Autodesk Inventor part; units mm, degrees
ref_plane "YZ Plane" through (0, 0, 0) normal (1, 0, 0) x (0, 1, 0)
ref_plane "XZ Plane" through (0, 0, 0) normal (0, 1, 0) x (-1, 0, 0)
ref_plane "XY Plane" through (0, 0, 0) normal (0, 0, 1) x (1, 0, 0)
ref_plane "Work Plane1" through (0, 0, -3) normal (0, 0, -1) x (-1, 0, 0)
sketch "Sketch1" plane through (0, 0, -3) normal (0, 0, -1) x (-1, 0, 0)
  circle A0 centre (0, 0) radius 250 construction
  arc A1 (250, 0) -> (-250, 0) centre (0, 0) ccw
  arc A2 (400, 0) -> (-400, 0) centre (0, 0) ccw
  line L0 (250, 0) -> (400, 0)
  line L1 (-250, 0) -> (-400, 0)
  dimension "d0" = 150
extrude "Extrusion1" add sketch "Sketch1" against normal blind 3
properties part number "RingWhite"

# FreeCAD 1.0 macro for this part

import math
import FreeCAD as App
import Part
import Sketcher
from FreeCAD import Vector

doc = App.newDocument("Part")
params = doc.addObject("Spreadsheet::Sheet", "Params")
for row, (alias, value) in enumerate([
    ("sketch1_width", "150 mm"),
    ("sketch1_radius", "250 mm"),
    ("pad1_length", "3 mm"),
], start=1):
    params.set(f"A{row}", alias)
    params.set(f"B{row}", "=" + value)
    params.setAlias(f"B{row}", alias)

body = doc.addObject("PartDesign::Body", "Body")

# Sketch on XY plane
sketch1 = body.newObject("Sketcher::SketchObject", "Sketch")
sketch1.AttachmentSupport = (doc.getObject("XY_Plane"), [""])
sketch1.MapMode = "FlatFace"
sketch1.AttachmentOffset = App.Placement(Vector(0, 0, -3), App.Rotation())
sketch1.addGeometry(Part.ArcOfCircle(Part.Circle(Vector(0, 0, 0), Vector(0, 0, 1), 250), math.radians(0), math.radians(180)), False)
sketch1.addGeometry(Part.LineSegment(Vector(-250, 0, 0), Vector(-400, 0, 0)), False)
sketch1.addGeometry(Part.ArcOfCircle(Part.Circle(Vector(0, 0, 0), Vector(0, 0, 1), 400), math.radians(0), math.radians(180)), False)
sketch1.addGeometry(Part.LineSegment(Vector(400, 0, 0), Vector(250, 0, 0)), False)
sketch1.addConstraint(Sketcher.Constraint("Coincident", 0, 2, 1, 1))
sketch1.addConstraint(Sketcher.Constraint("Coincident", 1, 2, 2, 2))
sketch1.addConstraint(Sketcher.Constraint("Coincident", 2, 1, 3, 1))
sketch1.addConstraint(Sketcher.Constraint("Coincident", 3, 2, 0, 1))
sketch1.addConstraint(Sketcher.Constraint("Horizontal", 1))
sketch1.addConstraint(Sketcher.Constraint("Horizontal", 3))
sketch1.addConstraint(Sketcher.Constraint("Coincident", 0, 3, -1, 1))
sketch1.addConstraint(Sketcher.Constraint("Coincident", 2, 3, -1, 1))
sketch1.addConstraint(Sketcher.Constraint("PointOnObject", 0, 2, -1))
sketch1.addConstraint(Sketcher.Constraint("PointOnObject", 3, 2, -1))
sketch1.addConstraint(Sketcher.Constraint("DistanceX", 1, 2, 1, 1, 150.0))
sketch1.addConstraint(Sketcher.Constraint("Radius", 0, 250.0))
sketch1.setExpression("Constraints[10]", "Params.sketch1_width")
sketch1.setExpression("Constraints[11]", "Params.sketch1_radius")
pad1 = body.newObject("PartDesign::Pad", "Pad")
pad1.Profile = sketch1
pad1.setExpression("Length", "Params.pad1_length")

doc.recompute()
